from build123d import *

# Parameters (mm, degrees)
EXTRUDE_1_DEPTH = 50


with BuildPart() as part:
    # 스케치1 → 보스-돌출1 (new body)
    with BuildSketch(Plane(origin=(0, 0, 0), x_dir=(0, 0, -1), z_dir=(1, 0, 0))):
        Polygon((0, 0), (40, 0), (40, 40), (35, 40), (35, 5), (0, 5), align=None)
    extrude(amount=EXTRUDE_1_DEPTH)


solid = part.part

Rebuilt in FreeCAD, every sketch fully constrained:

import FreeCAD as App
import Part
import Sketcher

V = App.Vector
Q = App.Units.Quantity

doc = App.newDocument("Part")
body = doc.addObject("PartDesign::Body", "Body")

# Sketch on YZ plane
sketch1 = doc.addObject("Sketcher::SketchObject", "Sketch")
body.addObject(sketch1)
sketch1.AttachmentSupport = (doc.YZ_Plane, [""])
sketch1.MapMode = "FlatFace"
sketch1.addGeometry([
    Part.LineSegment(V(0, 0, 0), V(0, -40, 0)),  # 0
    Part.LineSegment(V(0, -40, 0), V(40, -40, 0)),  # 1
    Part.LineSegment(V(40, -40, 0), V(40, -35, 0)),  # 2
    Part.LineSegment(V(40, -35, 0), V(5, -35, 0)),  # 3
    Part.LineSegment(V(5, -35, 0), V(5, 0, 0)),  # 4
    Part.LineSegment(V(5, 0, 0), V(0, 0, 0)),  # 5
], False)
sketch1.addConstraint([
    Sketcher.Constraint("Coincident", 0, 2, 1, 1),
    Sketcher.Constraint("Coincident", 1, 2, 2, 1),
    Sketcher.Constraint("Coincident", 2, 2, 3, 1),
    Sketcher.Constraint("Coincident", 3, 2, 4, 1),
    Sketcher.Constraint("Coincident", 4, 2, 5, 1),
    Sketcher.Constraint("Coincident", 5, 2, 0, 1),
    Sketcher.Constraint("Vertical", 0),
    Sketcher.Constraint("Horizontal", 1),
    Sketcher.Constraint("Vertical", 2),
    Sketcher.Constraint("Horizontal", 3),
    Sketcher.Constraint("Vertical", 4),
    Sketcher.Constraint("Horizontal", 5),
    Sketcher.Constraint("Coincident", 5, 2, -1, 1),
    Sketcher.Constraint("Equal", 1, 0),
    Sketcher.Constraint("Equal", 5, 2),
    Sketcher.Constraint("DistanceX", 1, 1, 1, 2, Q("40 mm")),
    Sketcher.Constraint("DistanceX", 3, 2, 3, 1, Q("35 mm")),
])
pad1 = doc.addObject("PartDesign::Pad", "Pad")
body.addObject(pad1)
pad1.Profile = sketch1
pad1.Length = 50

doc.recompute()
